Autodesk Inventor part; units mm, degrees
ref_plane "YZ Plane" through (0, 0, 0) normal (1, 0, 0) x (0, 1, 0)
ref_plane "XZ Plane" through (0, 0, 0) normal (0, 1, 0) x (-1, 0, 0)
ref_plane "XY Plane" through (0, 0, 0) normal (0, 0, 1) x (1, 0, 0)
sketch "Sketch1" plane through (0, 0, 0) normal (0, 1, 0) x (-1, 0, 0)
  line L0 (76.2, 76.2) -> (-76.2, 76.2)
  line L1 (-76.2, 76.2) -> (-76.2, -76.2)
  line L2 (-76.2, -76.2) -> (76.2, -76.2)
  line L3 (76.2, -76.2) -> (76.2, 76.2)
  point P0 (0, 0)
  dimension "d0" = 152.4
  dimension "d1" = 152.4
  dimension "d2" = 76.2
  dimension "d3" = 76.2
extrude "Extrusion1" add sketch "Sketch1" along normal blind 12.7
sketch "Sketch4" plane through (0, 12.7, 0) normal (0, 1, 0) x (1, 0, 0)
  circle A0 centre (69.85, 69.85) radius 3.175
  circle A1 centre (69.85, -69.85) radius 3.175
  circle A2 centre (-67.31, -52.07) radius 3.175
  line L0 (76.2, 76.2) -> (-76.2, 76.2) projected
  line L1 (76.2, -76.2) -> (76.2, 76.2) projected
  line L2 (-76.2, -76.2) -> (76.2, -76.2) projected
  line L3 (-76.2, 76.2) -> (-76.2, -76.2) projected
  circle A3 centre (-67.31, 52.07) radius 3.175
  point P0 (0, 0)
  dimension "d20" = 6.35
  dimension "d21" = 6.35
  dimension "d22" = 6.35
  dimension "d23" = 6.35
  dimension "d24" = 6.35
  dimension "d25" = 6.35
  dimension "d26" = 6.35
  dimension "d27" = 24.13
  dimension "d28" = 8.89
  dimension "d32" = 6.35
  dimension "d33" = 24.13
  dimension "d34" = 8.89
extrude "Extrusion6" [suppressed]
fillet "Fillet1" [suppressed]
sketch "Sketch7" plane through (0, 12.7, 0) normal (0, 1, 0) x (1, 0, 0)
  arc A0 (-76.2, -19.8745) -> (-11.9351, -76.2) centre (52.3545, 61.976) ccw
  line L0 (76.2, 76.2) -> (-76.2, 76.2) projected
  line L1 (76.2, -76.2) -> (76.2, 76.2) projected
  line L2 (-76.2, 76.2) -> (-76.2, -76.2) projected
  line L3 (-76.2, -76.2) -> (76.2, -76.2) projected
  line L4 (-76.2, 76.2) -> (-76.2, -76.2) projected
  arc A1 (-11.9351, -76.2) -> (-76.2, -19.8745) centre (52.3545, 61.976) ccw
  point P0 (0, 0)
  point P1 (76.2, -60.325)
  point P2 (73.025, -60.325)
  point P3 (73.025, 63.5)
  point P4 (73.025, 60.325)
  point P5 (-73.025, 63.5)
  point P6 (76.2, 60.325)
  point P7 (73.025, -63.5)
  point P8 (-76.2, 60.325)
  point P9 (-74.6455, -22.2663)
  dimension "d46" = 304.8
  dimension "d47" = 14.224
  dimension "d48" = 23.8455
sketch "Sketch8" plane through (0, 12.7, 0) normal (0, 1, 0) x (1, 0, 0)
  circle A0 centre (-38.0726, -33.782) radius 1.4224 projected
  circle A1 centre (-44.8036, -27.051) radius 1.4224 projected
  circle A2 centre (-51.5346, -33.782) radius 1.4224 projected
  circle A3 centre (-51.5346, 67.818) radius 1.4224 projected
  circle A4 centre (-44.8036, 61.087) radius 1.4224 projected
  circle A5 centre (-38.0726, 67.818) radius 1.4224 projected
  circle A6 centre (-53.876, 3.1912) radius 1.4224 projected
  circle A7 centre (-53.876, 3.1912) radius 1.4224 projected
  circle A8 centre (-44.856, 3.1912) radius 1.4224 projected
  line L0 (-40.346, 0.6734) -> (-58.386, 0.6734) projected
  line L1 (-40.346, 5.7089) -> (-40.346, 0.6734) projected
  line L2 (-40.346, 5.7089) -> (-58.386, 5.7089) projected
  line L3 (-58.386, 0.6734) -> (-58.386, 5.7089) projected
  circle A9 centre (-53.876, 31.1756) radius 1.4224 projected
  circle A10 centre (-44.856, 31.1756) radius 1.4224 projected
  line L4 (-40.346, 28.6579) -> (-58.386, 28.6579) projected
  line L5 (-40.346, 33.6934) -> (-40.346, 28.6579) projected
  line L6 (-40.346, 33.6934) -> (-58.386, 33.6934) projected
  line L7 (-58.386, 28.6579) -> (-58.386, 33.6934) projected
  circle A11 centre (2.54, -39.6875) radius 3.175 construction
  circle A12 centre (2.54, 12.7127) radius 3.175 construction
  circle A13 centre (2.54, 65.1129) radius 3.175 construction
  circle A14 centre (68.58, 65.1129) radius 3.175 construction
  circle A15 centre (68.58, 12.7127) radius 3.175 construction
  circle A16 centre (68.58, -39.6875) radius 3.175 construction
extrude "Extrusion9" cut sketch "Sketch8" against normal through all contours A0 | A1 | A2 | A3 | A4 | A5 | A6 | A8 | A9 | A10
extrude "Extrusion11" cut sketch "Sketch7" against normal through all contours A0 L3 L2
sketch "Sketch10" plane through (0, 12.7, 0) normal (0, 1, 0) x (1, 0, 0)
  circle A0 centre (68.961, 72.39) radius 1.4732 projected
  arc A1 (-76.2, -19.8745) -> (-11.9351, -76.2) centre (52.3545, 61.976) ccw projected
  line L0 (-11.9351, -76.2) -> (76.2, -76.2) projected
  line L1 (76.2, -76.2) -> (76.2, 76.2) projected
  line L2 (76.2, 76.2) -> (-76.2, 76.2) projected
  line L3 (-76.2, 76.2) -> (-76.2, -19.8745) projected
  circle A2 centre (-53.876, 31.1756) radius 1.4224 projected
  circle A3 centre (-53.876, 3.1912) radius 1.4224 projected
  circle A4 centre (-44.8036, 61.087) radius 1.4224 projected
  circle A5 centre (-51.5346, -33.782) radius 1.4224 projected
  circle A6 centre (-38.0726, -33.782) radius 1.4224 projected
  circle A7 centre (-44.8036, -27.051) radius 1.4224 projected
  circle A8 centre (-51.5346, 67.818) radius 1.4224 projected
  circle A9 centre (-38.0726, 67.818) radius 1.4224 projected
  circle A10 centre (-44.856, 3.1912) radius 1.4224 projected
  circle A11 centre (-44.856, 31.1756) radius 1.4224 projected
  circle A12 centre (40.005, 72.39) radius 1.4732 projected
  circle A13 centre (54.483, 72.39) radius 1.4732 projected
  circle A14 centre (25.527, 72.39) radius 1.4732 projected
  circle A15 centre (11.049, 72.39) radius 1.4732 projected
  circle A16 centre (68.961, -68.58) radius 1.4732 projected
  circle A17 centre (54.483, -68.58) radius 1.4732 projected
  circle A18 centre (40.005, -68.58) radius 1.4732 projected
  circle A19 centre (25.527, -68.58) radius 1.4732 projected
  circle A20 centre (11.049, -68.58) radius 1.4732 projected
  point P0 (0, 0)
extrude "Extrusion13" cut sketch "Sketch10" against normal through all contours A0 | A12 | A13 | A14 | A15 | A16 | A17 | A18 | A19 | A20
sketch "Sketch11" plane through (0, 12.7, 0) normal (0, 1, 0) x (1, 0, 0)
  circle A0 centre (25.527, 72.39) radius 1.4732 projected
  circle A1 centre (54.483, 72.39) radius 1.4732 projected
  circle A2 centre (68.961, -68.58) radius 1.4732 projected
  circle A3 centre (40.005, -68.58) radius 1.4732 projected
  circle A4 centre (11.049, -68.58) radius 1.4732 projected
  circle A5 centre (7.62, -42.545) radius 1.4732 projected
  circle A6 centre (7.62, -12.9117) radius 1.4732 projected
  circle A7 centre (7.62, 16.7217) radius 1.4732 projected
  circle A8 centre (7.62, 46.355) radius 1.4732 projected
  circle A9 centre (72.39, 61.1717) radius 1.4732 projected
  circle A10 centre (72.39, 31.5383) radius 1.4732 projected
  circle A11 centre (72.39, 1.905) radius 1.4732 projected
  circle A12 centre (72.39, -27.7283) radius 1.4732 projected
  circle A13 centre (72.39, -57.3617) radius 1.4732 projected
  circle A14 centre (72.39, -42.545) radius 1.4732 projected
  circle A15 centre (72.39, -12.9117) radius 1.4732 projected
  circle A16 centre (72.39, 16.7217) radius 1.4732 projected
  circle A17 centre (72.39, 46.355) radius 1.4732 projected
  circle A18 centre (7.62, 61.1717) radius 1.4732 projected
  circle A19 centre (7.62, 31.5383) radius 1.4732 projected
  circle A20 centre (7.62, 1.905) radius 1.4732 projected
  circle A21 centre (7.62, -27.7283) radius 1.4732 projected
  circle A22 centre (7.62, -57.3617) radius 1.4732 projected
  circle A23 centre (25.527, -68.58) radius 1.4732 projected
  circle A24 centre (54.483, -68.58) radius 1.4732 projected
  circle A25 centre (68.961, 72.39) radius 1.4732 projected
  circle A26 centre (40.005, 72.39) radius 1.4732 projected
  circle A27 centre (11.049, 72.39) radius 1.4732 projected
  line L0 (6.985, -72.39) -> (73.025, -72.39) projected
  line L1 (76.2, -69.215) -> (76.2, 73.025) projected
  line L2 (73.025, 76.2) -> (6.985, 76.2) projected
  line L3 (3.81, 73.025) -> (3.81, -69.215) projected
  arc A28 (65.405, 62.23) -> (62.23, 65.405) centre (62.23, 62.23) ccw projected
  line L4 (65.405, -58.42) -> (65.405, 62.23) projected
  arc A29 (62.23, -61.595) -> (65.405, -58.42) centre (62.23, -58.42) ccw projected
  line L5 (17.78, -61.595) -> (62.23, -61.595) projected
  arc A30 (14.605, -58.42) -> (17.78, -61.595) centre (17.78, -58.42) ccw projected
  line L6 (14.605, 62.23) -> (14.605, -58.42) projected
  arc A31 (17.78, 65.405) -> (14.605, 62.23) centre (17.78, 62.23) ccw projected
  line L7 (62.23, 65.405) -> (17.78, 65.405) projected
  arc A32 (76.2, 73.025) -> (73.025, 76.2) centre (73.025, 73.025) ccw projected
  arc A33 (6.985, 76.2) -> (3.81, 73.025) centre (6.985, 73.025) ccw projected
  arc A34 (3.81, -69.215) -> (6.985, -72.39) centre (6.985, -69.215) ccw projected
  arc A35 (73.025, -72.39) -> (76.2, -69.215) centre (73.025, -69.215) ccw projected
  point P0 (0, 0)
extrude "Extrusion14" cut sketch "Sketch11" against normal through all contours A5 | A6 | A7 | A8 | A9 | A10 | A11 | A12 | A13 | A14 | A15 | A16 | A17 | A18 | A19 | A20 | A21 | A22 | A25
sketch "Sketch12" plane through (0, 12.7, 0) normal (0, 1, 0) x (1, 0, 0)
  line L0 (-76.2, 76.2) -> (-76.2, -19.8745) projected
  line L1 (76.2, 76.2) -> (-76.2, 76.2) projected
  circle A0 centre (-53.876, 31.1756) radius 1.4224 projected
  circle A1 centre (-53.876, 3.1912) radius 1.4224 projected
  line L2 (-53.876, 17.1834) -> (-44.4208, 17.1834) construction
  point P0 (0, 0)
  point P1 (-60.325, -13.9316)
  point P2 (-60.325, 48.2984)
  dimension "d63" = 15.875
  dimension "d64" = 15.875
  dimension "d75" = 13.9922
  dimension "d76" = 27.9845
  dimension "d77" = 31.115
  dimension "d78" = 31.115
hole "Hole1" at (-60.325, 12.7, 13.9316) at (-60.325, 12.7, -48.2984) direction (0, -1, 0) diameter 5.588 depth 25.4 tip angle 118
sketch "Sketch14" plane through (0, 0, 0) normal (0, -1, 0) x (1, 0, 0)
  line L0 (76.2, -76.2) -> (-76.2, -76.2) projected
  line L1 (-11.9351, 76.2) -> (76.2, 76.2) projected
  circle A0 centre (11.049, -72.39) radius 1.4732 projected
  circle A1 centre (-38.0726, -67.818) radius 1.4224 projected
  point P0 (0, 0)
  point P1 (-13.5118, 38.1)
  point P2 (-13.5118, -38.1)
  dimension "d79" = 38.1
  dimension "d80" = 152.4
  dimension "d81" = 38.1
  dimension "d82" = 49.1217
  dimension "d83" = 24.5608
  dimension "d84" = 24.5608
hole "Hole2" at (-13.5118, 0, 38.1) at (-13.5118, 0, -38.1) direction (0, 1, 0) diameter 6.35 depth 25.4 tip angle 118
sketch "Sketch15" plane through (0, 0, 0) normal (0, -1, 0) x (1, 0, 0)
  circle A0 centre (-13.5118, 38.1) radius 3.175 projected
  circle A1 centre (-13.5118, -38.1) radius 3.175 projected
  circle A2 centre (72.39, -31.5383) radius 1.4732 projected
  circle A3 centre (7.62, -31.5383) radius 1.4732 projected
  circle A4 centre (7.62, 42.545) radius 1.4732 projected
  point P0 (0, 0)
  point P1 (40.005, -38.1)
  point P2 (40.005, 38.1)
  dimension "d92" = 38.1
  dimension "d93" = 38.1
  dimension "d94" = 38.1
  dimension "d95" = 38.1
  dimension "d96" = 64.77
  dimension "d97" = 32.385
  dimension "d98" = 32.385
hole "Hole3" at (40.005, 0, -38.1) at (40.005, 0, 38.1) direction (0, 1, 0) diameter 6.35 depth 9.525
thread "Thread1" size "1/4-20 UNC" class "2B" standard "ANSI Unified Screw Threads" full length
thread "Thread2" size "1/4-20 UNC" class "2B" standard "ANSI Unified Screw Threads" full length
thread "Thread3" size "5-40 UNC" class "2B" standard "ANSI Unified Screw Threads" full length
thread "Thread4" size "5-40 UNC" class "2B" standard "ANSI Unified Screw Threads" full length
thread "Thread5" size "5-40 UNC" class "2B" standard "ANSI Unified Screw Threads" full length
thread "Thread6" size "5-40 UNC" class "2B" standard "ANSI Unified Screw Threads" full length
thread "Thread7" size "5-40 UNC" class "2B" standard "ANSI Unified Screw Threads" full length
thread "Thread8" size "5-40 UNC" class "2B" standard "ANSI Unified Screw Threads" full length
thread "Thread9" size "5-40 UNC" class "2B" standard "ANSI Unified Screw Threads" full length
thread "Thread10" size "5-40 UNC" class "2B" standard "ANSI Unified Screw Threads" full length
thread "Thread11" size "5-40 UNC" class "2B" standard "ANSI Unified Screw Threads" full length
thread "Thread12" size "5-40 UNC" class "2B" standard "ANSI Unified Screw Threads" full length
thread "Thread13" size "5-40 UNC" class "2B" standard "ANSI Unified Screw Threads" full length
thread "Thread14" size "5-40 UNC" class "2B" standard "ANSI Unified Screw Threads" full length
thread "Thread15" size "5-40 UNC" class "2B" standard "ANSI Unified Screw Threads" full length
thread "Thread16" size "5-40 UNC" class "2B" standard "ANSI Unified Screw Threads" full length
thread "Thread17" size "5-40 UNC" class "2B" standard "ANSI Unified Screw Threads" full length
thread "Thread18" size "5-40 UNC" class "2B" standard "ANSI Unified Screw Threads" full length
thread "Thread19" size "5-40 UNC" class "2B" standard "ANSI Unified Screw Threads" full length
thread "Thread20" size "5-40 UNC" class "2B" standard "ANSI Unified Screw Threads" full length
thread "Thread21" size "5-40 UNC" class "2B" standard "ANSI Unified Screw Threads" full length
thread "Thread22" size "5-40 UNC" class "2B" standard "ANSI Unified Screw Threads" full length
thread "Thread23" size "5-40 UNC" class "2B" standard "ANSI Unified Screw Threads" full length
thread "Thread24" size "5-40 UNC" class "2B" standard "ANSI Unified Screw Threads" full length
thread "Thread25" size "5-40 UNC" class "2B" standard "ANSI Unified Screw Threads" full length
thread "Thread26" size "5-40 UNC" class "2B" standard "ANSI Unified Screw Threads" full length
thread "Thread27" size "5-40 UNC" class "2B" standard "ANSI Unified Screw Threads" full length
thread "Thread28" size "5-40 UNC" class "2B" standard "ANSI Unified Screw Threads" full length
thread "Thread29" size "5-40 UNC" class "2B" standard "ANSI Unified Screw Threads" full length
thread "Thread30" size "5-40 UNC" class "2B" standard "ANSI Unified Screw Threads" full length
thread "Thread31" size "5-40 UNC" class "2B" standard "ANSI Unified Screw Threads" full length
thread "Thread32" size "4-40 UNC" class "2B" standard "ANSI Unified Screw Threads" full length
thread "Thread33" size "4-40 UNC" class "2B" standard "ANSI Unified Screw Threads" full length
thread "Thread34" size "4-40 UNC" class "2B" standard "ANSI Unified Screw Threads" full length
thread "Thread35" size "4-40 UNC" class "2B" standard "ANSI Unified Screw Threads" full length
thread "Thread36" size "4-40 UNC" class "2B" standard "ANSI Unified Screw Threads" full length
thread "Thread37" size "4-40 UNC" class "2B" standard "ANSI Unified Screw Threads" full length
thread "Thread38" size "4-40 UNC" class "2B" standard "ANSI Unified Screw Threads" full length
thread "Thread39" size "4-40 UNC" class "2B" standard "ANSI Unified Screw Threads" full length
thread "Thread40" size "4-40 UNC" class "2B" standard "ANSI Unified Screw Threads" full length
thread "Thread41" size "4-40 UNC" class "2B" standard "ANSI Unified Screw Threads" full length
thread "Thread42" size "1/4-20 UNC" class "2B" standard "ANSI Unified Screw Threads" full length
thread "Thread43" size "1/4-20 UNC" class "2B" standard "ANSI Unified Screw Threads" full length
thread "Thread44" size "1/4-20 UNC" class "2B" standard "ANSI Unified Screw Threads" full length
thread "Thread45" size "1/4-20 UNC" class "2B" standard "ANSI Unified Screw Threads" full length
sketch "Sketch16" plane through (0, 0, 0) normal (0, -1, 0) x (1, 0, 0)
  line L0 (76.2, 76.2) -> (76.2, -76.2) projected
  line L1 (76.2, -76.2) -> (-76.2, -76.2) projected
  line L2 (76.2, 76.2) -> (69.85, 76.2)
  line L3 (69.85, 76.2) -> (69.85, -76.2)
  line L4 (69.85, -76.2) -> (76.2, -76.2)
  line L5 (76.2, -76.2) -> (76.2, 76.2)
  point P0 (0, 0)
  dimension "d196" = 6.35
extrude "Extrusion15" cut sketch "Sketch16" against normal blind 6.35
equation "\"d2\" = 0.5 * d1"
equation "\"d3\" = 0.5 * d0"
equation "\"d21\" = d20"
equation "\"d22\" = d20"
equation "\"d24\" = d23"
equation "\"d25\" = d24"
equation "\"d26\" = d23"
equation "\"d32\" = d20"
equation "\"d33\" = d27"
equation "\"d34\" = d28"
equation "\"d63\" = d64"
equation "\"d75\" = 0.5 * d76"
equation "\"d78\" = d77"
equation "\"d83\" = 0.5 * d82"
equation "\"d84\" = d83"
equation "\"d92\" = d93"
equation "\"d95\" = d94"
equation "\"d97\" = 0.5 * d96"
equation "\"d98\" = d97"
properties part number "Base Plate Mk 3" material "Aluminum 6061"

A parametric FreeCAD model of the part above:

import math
import FreeCAD as App
import Part
import Sketcher

V = App.Vector
Q = App.Units.Quantity

doc = App.newDocument("Part")
params = doc.addObject("Spreadsheet::Sheet", "Params")
for row, (alias, value) in enumerate([
    ("sketch1_width", "6 in"),
    ("pad1_length", "0.5 in"),
    ("sketch2_diameter", "0.112 in"),
    ("sketch3_radius", "6 in"),
    ("sketch4_diameter", "0.116 in"),
    ("sketch5_diameter", "0.116 in"),
    ("sketch6_diameter", "0.22 in"),
    ("hole_diameter", "0.22 in"),
    ("hole_depth", "1 in"),
    ("sketch7_diameter", "0.25 in"),
    ("hole2_diameter", "0.25 in"),
    ("hole2_depth", "1 in"),
    ("sketch8_diameter", "0.25 in"),
    ("hole3_diameter", "0.25 in"),
    ("hole3_depth", "0.375 in"),
    ("sketch9_width", "0.25 in"),
    ("sketch9_height", "6 in"),
    ("pocket5_length", "0.25 in"),
], start=1):
    params.set(f"A{row}", alias)
    params.set(f"B{row}", "=" + value)
    params.setAlias(f"B{row}", alias)

body = doc.addObject("PartDesign::Body", "Body")

sketch1 = body.newObject("Sketcher::SketchObject", "Sketch")
sketch1.AttachmentSupport = (doc.getObject("XZ_Plane"), [""])
sketch1.MapMode = "FlatFace"
sketch1.addGeometry([
    Part.LineSegment(V(-76, -76, 0), V(-76, 76, 0)),
    Part.LineSegment(V(-76, 76, 0), V(76, 76, 0)),
    Part.LineSegment(V(76, 76, 0), V(76, -76, 0)),
    Part.LineSegment(V(76, -76, 0), V(-76, -76, 0)),
], False)
sketch1.addConstraint([
    Sketcher.Constraint("Coincident", 0, 2, 1, 1),
    Sketcher.Constraint("Coincident", 1, 2, 2, 1),
    Sketcher.Constraint("Coincident", 2, 2, 3, 1),
    Sketcher.Constraint("Coincident", 3, 2, 0, 1),
    Sketcher.Constraint("Vertical", 0),
    Sketcher.Constraint("Horizontal", 1),
    Sketcher.Constraint("Vertical", 2),
    Sketcher.Constraint("Horizontal", 3),
    Sketcher.Constraint("Symmetric", 0, 2, 2, 2, -1, 1),
    Sketcher.Constraint("Equal", 3, 0),
    Sketcher.Constraint("DistanceX", 1, 1, 1, 2, Q("6 in")),
])
sketch1.setExpression("Constraints[10]", "Params.sketch1_width")
pad1 = body.newObject("PartDesign::Pad", "Pad")
pad1.Profile = sketch1
pad1.setExpression("Length", "Params.pad1_length")
pad1.Reversed = True

sketch2 = body.newObject("Sketcher::SketchObject", "Sketch001")
sketch2.AttachmentSupport = (doc.getObject("XZ_Plane"), [""])
sketch2.MapMode = "FlatFace"
sketch2.AttachmentOffset = App.Placement(V(0, 0, -0.5 * 25.4), App.Rotation())
sketch2.addGeometry([
    Part.Circle(V(-38.1, 33.8, 0), V(0, 0, 1), 1.4),
    Part.Circle(V(-44.8, 27.1, 0), V(0, 0, 1), 1.4),
    Part.Circle(V(-51.5, 33.8, 0), V(0, 0, 1), 1.4),
    Part.Circle(V(-51.5, -67.8, 0), V(0, 0, 1), 1.4),
    Part.Circle(V(-44.8, -61.1, 0), V(0, 0, 1), 1.4),
    Part.Circle(V(-38.1, -67.8, 0), V(0, 0, 1), 1.4),
    Part.Circle(V(-53.9, -3.2, 0), V(0, 0, 1), 1.4),
    Part.Circle(V(-44.9, -3.2, 0), V(0, 0, 1), 1.4),
    Part.Circle(V(-53.9, -31.2, 0), V(0, 0, 1), 1.4),
    Part.Circle(V(-44.9, -31.2, 0), V(0, 0, 1), 1.4),
], False)
sketch2.addConstraint([
    Sketcher.Constraint("Equal", 0, 1),
    Sketcher.Constraint("Equal", 1, 2),
    Sketcher.Constraint("Equal", 2, 3),
    Sketcher.Constraint("Equal", 3, 4),
    Sketcher.Constraint("Equal", 4, 5),
    Sketcher.Constraint("Equal", 5, 6),
    Sketcher.Constraint("Equal", 6, 7),
    Sketcher.Constraint("Equal", 7, 8),
    Sketcher.Constraint("Equal", 8, 9),
    Sketcher.Constraint("Horizontal", 0, 3, 2, 3),
    Sketcher.Constraint("Horizontal", 3, 3, 5, 3),
    Sketcher.Constraint("Horizontal", 6, 3, 7, 3),
    Sketcher.Constraint("Horizontal", 8, 3, 9, 3),
    Sketcher.Constraint("Vertical", 2, 3, 3, 3),
    Sketcher.Constraint("Vertical", 1, 3, 4, 3),
    Sketcher.Constraint("Vertical", 0, 3, 5, 3),
    Sketcher.Constraint("Vertical", 6, 3, 8, 3),
    Sketcher.Constraint("Vertical", 7, 3, 9, 3),
    Sketcher.Constraint("Diameter", 0, Q("0.112 in")),
    Sketcher.Constraint("DistanceY", 3, 3, 2, 3, Q("4 in")),
    Sketcher.Constraint("DistanceY", -1, 1, 0, 3, Q("1.33 in")),
    Sketcher.Constraint("DistanceX", 2, 3, 0, 3, Q("0.53 in")),
    Sketcher.Constraint("DistanceY", 4, 3, 1, 3, Q("3.47 in")),
    Sketcher.Constraint("DistanceY", -1, 1, 1, 3, Q("1.065 in")),
    Sketcher.Constraint("DistanceX", 1, 3, 0, 3, Q("0.265 in")),
    Sketcher.Constraint("DistanceX", 6, 3, -1, 1, Q("2.1211 in")),
    Sketcher.Constraint("DistanceX", 0, 3, -1, 1, 38.0726),
    Sketcher.Constraint("DistanceY", 6, 3, -1, 1, 3.1912),
    Sketcher.Constraint("DistanceX", 7, 3, -1, 1, 44.856),
    Sketcher.Constraint("DistanceY", 8, 3, -1, 1, 31.1756),
])
sketch2.setExpression("Constraints[18]", "Params.sketch2_diameter")
pocket1 = body.newObject("PartDesign::Pocket", "Pocket")
pocket1.Profile = sketch2
pocket1.Type = "ThroughAll"
pocket1.Reversed = True

sketch3 = body.newObject("Sketcher::SketchObject", "Sketch002")
sketch3.AttachmentSupport = (doc.getObject("XZ_Plane"), [""])
sketch3.MapMode = "FlatFace"
sketch3.AttachmentOffset = App.Placement(V(0, 0, -0.5 * 25.4), App.Rotation())
sketch3.addGeometry([
    Part.ArcOfCircle(Part.Circle(V(52, -62, 0), V(0, 0, 1), 152), math.radians(115), math.radians(148)),
    Part.LineSegment(V(-76, 20, 0), V(-76, 76, 0)),
    Part.LineSegment(V(-76, 76, 0), V(-12, 76, 0)),
], False)
sketch3.addConstraint([
    Sketcher.Constraint("Coincident", 0, 2, 1, 1),
    Sketcher.Constraint("Coincident", 1, 2, 2, 1),
    Sketcher.Constraint("Coincident", 2, 2, 0, 1),
    Sketcher.Constraint("Vertical", 1),
    Sketcher.Constraint("Horizontal", 2),
    Sketcher.Constraint("Radius", 0, Q("6 in")),
    Sketcher.Constraint("DistanceX", 0, 2, -1, 1, Q("3 in")),
    Sketcher.Constraint("DistanceY", -1, 1, 1, 2, Q("3 in")),
    Sketcher.Constraint("DistanceY", 0, 3, -1, 1, Q("2.44 in")),
    Sketcher.Constraint("DistanceX", 2, 1, 2, 2, 64.265),
])
sketch3.setExpression("Constraints[5]", "Params.sketch3_radius")
pocket2 = body.newObject("PartDesign::Pocket", "Pocket001")
pocket2.Profile = sketch3
pocket2.Type = "ThroughAll"
pocket2.Reversed = True

sketch4 = body.newObject("Sketcher::SketchObject", "Sketch003")
sketch4.AttachmentSupport = (doc.getObject("XZ_Plane"), [""])
sketch4.MapMode = "FlatFace"
sketch4.AttachmentOffset = App.Placement(V(0, 0, -0.5 * 25.4), App.Rotation())
sketch4.addGeometry([
    Part.Circle(V(69, -72.4, 0), V(0, 0, 1), 1.5),
    Part.Circle(V(40, -72.4, 0), V(0, 0, 1), 1.5),
    Part.Circle(V(54.5, -72.4, 0), V(0, 0, 1), 1.5),
    Part.Circle(V(25.5, -72.4, 0), V(0, 0, 1), 1.5),
    Part.Circle(V(11, -72.4, 0), V(0, 0, 1), 1.5),
    Part.Circle(V(69, 68.6, 0), V(0, 0, 1), 1.5),
    Part.Circle(V(54.5, 68.6, 0), V(0, 0, 1), 1.5),
    Part.Circle(V(40, 68.6, 0), V(0, 0, 1), 1.5),
    Part.Circle(V(25.5, 68.6, 0), V(0, 0, 1), 1.5),
    Part.Circle(V(11, 68.6, 0), V(0, 0, 1), 1.5),
], False)
sketch4.addConstraint([
    Sketcher.Constraint("Equal", 0, 1),
    Sketcher.Constraint("Equal", 1, 2),
    Sketcher.Constraint("Equal", 2, 3),
    Sketcher.Constraint("Equal", 3, 4),
    Sketcher.Constraint("Equal", 4, 5),
    Sketcher.Constraint("Equal", 5, 6),
    Sketcher.Constraint("Equal", 6, 7),
    Sketcher.Constraint("Equal", 7, 8),
    Sketcher.Constraint("Equal", 8, 9),
    Sketcher.Constraint("Horizontal", 0, 3, 1, 3),
    Sketcher.Constraint("Horizontal", 1, 3, 2, 3),
    Sketcher.Constraint("Horizontal", 2, 3, 3, 3),
    Sketcher.Constraint("Horizontal", 3, 3, 4, 3),
    Sketcher.Constraint("Horizontal", 5, 3, 6, 3),
    Sketcher.Constraint("Horizontal", 6, 3, 7, 3),
    Sketcher.Constraint("Horizontal", 7, 3, 8, 3),
    Sketcher.Constraint("Horizontal", 8, 3, 9, 3),
    Sketcher.Constraint("Vertical", 0, 3, 5, 3),
    Sketcher.Constraint("Vertical", 2, 3, 6, 3),
    Sketcher.Constraint("Vertical", 1, 3, 7, 3),
    Sketcher.Constraint("Vertical", 3, 3, 8, 3),
    Sketcher.Constraint("Vertical", 4, 3, 9, 3),
    Sketcher.Constraint("Diameter", 0, Q("0.116 in")),
    Sketcher.Constraint("DistanceY", -1, 1, 5, 3, Q("2.7 in")),
    Sketcher.Constraint("DistanceY", 0, 3, -1, 1, Q("2.85 in")),
    Sketcher.Constraint("DistanceX", 1, 3, 0, 3, Q("1.14 in")),
    Sketcher.Constraint("DistanceX", 1, 3, 2, 3, Q("0.57 in")),
    Sketcher.Constraint("DistanceX", 3, 3, 1, 3, Q("0.57 in")),
    Sketcher.Constraint("DistanceX", 4, 3, 3, 3, Q("0.57 in")),
    Sketcher.Constraint("DistanceX", -1, 1, 0, 3, Q("2.715 in")),
])
sketch4.setExpression("Constraints[22]", "Params.sketch4_diameter")
pocket3 = body.newObject("PartDesign::Pocket", "Pocket002")
pocket3.Profile = sketch4
pocket3.Type = "ThroughAll"
pocket3.Reversed = True

sketch5 = body.newObject("Sketcher::SketchObject", "Sketch004")
sketch5.AttachmentSupport = (doc.getObject("XZ_Plane"), [""])
sketch5.MapMode = "FlatFace"
sketch5.AttachmentOffset = App.Placement(V(0, 0, -0.5 * 25.4), App.Rotation())
sketch5.addGeometry([
    Part.Circle(V(7.6, 42.5, 0), V(0, 0, 1), 1.5),
    Part.Circle(V(7.6, 12.9, 0), V(0, 0, 1), 1.5),
    Part.Circle(V(7.6, -16.7, 0), V(0, 0, 1), 1.5),
    Part.Circle(V(7.6, -46.4, 0), V(0, 0, 1), 1.5),
    Part.Circle(V(72.4, -61.2, 0), V(0, 0, 1), 1.5),
    Part.Circle(V(72.4, -31.5, 0), V(0, 0, 1), 1.5),
    Part.Circle(V(72.4, -1.9, 0), V(0, 0, 1), 1.5),
    Part.Circle(V(72.4, 27.7, 0), V(0, 0, 1), 1.5),
    Part.Circle(V(72.4, 57.4, 0), V(0, 0, 1), 1.5),
    Part.Circle(V(72.4, 42.5, 0), V(0, 0, 1), 1.5),
    Part.Circle(V(72.4, 12.9, 0), V(0, 0, 1), 1.5),
    Part.Circle(V(72.4, -16.7, 0), V(0, 0, 1), 1.5),
    Part.Circle(V(72.4, -46.4, 0), V(0, 0, 1), 1.5),
    Part.Circle(V(7.6, -61.2, 0), V(0, 0, 1), 1.5),
    Part.Circle(V(7.6, -31.5, 0), V(0, 0, 1), 1.5),
    Part.Circle(V(7.6, -1.9, 0), V(0, 0, 1), 1.5),
    Part.Circle(V(7.6, 27.7, 0), V(0, 0, 1), 1.5),
    Part.Circle(V(7.6, 57.4, 0), V(0, 0, 1), 1.5),
    Part.Circle(V(69, -72.4, 0), V(0, 0, 1), 1.5),
], False)
sketch5.addConstraint([
    Sketcher.Constraint("Equal", 0, 1),
    Sketcher.Constraint("Equal", 1, 2),
    Sketcher.Constraint("Equal", 2, 3),
    Sketcher.Constraint("Equal", 3, 4),
    Sketcher.Constraint("Equal", 4, 5),
    Sketcher.Constraint("Equal", 5, 6),
    Sketcher.Constraint("Equal", 6, 7),
    Sketcher.Constraint("Equal", 7, 8),
    Sketcher.Constraint("Equal", 8, 9),
    Sketcher.Constraint("Equal", 9, 10),
    Sketcher.Constraint("Equal", 10, 11),
    Sketcher.Constraint("Equal", 11, 12),
    Sketcher.Constraint("Equal", 12, 13),
    Sketcher.Constraint("Equal", 13, 14),
    Sketcher.Constraint("Equal", 14, 15),
    Sketcher.Constraint("Equal", 15, 16),
    Sketcher.Constraint("Equal", 16, 17),
    Sketcher.Constraint("Equal", 17, 18),
    Sketcher.Constraint("Horizontal", 0, 3, 9, 3),
    Sketcher.Constraint("Horizontal", 1, 3, 10, 3),
    Sketcher.Constraint("Horizontal", 2, 3, 11, 3),
    Sketcher.Constraint("Horizontal", 3, 3, 12, 3),
    Sketcher.Constraint("Horizontal", 4, 3, 13, 3),
    Sketcher.Constraint("Horizontal", 5, 3, 14, 3),
    Sketcher.Constraint("Horizontal", 6, 3, 15, 3),
    Sketcher.Constraint("Horizontal", 7, 3, 16, 3),
    Sketcher.Constraint("Horizontal", 8, 3, 17, 3),
    Sketcher.Constraint("Vertical", 0, 3, 1, 3),
    Sketcher.Constraint("Vertical", 1, 3, 2, 3),
    Sketcher.Constraint("Vertical", 2, 3, 3, 3),
    Sketcher.Constraint("Vertical", 4, 3, 5, 3),
    Sketcher.Constraint("Vertical", 5, 3, 6, 3),
    Sketcher.Constraint("Vertical", 6, 3, 7, 3),
    Sketcher.Constraint("Vertical", 7, 3, 8, 3),
    Sketcher.Constraint("Vertical", 8, 3, 9, 3),
    Sketcher.Constraint("Vertical", 9, 3, 10, 3),
    Sketcher.Constraint("Vertical", 10, 3, 11, 3),
    Sketcher.Constraint("Vertical", 11, 3, 12, 3),
    Sketcher.Constraint("Vertical", 3, 3, 13, 3),
    Sketcher.Constraint("Vertical", 13, 3, 14, 3),
    Sketcher.Constraint("Vertical", 14, 3, 15, 3),
    Sketcher.Constraint("Vertical", 15, 3, 16, 3),
    Sketcher.Constraint("Vertical", 16, 3, 17, 3),
    Sketcher.Constraint("Diameter", 0, Q("0.116 in")),
    Sketcher.Constraint("DistanceX", -1, 1, 0, 3, Q("0.3 in")),
    Sketcher.Constraint("DistanceY", 3, 3, 0, 3, Q("3.5 in")),
    Sketcher.Constraint("DistanceY", 5, 3, 8, 3, Q("3.5 in")),
    Sketcher.Constraint("DistanceX", -1, 1, 4, 3, Q("2.85 in")),
    Sketcher.Constraint("DistanceY", 18, 3, -1, 1, Q("2.85 in")),
    Sketcher.Constraint("DistanceY", 4, 3, 2, 3, Q("1.75 in")),
    Sketcher.Constraint("DistanceY", 5, 3, 1, 3, Q("1.75 in")),
    Sketcher.Constraint("DistanceY", 6, 3, 0, 3, Q("1.75 in")),
    Sketcher.Constraint("DistanceY", 2, 3, 7, 3, Q("1.75 in")),
    Sketcher.Constraint("DistanceY", -1, 1, 0, 3, Q("1.675 in")),
    Sketcher.Constraint("DistanceX", -1, 1, 18, 3, Q("2.715 in")),
    Sketcher.Constraint("DistanceY", -1, 1, 1, 3, 12.9117),
    Sketcher.Constraint("DistanceY", 2, 3, -1, 1, 16.7217),
])
sketch5.setExpression("Constraints[43]", "Params.sketch5_diameter")
pocket4 = body.newObject("PartDesign::Pocket", "Pocket003")
pocket4.Profile = sketch5
pocket4.Type = "ThroughAll"
pocket4.Reversed = True

sketch6 = body.newObject("Sketcher::SketchObject", "Sketch005")
sketch6.AttachmentSupport = (doc.getObject("XZ_Plane"), [""])
sketch6.MapMode = "FlatFace"
sketch6.AttachmentOffset = App.Placement(V(0, 0, -0.5 * 25.4), App.Rotation())
sketch6.addGeometry([
    Part.Circle(V(-60.3, 13.9, 0), V(0, 0, 1), 2.8),
    Part.Circle(V(-60.3, -48.3, 0), V(0, 0, 1), 2.8),
], False)
sketch6.addConstraint([
    Sketcher.Constraint("Equal", 0, 1),
    Sketcher.Constraint("Vertical", 0, 3, 1, 3),
    Sketcher.Constraint("Diameter", 0, Q("0.22 in")),
    Sketcher.Constraint("DistanceY", 1, 3, 0, 3, Q("2.45 in")),
    Sketcher.Constraint("DistanceX", 0, 3, -1, 1, Q("2.375 in")),
    Sketcher.Constraint("DistanceY", -1, 1, 0, 3, Q("0.5485 in")),
])
sketch6.setExpression("Constraints[2]", "Params.sketch6_diameter")
doc.recompute()
hole = body.newObject("PartDesign::Hole", "Hole")
hole.Profile = sketch6
hole.ThreadType = "None"
hole.setExpression("Diameter", "Params.hole_diameter")
hole.DepthType = "Dimension"
hole.setExpression("Depth", "Params.hole_depth")
hole.DrillPoint = "Angled"
hole.DrillPointAngle = 118
hole.Reversed = True

sketch7 = body.newObject("Sketcher::SketchObject", "Sketch006")
sketch7.AttachmentSupport = (doc.getObject("XZ_Plane"), [""])
sketch7.MapMode = "FlatFace"
sketch7.addGeometry([
    Part.Circle(V(-13.5, 38.1, 0), V(0, 0, 1), 3.2),
    Part.Circle(V(-13.5, -38.1, 0), V(0, 0, 1), 3.2),
], False)
sketch7.addConstraint([
    Sketcher.Constraint("Equal", 0, 1),
    Sketcher.Constraint("Symmetric", 0, 3, 1, 3, -1),
    Sketcher.Constraint("Diameter", 0, Q("0.25 in")),
    Sketcher.Constraint("DistanceY", 1, 3, 0, 3, Q("3 in")),
    Sketcher.Constraint("DistanceX", 0, 3, -1, 1, 13.5118),
])
sketch7.setExpression("Constraints[2]", "Params.sketch7_diameter")
doc.recompute()
hole2 = body.newObject("PartDesign::Hole", "Hole001")
hole2.Profile = sketch7
hole2.ThreadType = "None"
hole2.setExpression("Diameter", "Params.hole2_diameter")
hole2.DepthType = "Dimension"
hole2.setExpression("Depth", "Params.hole2_depth")
hole2.DrillPoint = "Angled"
hole2.DrillPointAngle = 118

sketch8 = body.newObject("Sketcher::SketchObject", "Sketch007")
sketch8.AttachmentSupport = (doc.getObject("XZ_Plane"), [""])
sketch8.MapMode = "FlatFace"
sketch8.addGeometry([
    Part.Circle(V(40, -38.1, 0), V(0, 0, 1), 3.2),
    Part.Circle(V(40, 38.1, 0), V(0, 0, 1), 3.2),
], False)
sketch8.addConstraint([
    Sketcher.Constraint("Equal", 0, 1),
    Sketcher.Constraint("Symmetric", 0, 3, 1, 3, -1),
    Sketcher.Constraint("Diameter", 0, Q("0.25 in")),
    Sketcher.Constraint("DistanceY", 0, 3, 1, 3, Q("3 in")),
    Sketcher.Constraint("DistanceX", -1, 1, 0, 3, Q("1.575 in")),
])
sketch8.setExpression("Constraints[2]", "Params.sketch8_diameter")
doc.recompute()
hole3 = body.newObject("PartDesign::Hole", "Hole002")
hole3.Profile = sketch8
hole3.ThreadType = "None"
hole3.setExpression("Diameter", "Params.hole3_diameter")
hole3.DepthType = "Dimension"
hole3.setExpression("Depth", "Params.hole3_depth")
hole3.DrillPoint = "Flat"

sketch9 = body.newObject("Sketcher::SketchObject", "Sketch008")
sketch9.AttachmentSupport = (doc.getObject("XZ_Plane"), [""])
sketch9.MapMode = "FlatFace"
sketch9.addGeometry([
    Part.LineSegment(V(76, -76, 0), V(76, 76, 0)),
    Part.LineSegment(V(76, 76, 0), V(70, 76, 0)),
    Part.LineSegment(V(70, 76, 0), V(70, -76, 0)),
    Part.LineSegment(V(70, -76, 0), V(76, -76, 0)),
], False)
sketch9.addConstraint([
    Sketcher.Constraint("Coincident", 0, 2, 1, 1),
    Sketcher.Constraint("Coincident", 1, 2, 2, 1),
    Sketcher.Constraint("Coincident", 2, 2, 3, 1),
    Sketcher.Constraint("Coincident", 3, 2, 0, 1),
    Sketcher.Constraint("Vertical", 0),
    Sketcher.Constraint("Horizontal", 1),
    Sketcher.Constraint("Vertical", 2),
    Sketcher.Constraint("Horizontal", 3),
    Sketcher.Constraint("DistanceX", 1, 2, 1, 1, Q("0.25 in")),
    Sketcher.Constraint("DistanceY", 0, 1, 0, 2, Q("6 in")),
    Sketcher.Constraint("DistanceX", -1, 1, 0, 2, Q("3 in")),
    Sketcher.Constraint("DistanceY", -1, 1, 0, 2, Q("3 in")),
])
sketch9.setExpression("Constraints[8]", "Params.sketch9_width")
sketch9.setExpression("Constraints[9]", "Params.sketch9_height")
pocket5 = body.newObject("PartDesign::Pocket", "Pocket004")
pocket5.Profile = sketch9
pocket5.setExpression("Length", "Params.pocket5_length")

doc.recompute()
